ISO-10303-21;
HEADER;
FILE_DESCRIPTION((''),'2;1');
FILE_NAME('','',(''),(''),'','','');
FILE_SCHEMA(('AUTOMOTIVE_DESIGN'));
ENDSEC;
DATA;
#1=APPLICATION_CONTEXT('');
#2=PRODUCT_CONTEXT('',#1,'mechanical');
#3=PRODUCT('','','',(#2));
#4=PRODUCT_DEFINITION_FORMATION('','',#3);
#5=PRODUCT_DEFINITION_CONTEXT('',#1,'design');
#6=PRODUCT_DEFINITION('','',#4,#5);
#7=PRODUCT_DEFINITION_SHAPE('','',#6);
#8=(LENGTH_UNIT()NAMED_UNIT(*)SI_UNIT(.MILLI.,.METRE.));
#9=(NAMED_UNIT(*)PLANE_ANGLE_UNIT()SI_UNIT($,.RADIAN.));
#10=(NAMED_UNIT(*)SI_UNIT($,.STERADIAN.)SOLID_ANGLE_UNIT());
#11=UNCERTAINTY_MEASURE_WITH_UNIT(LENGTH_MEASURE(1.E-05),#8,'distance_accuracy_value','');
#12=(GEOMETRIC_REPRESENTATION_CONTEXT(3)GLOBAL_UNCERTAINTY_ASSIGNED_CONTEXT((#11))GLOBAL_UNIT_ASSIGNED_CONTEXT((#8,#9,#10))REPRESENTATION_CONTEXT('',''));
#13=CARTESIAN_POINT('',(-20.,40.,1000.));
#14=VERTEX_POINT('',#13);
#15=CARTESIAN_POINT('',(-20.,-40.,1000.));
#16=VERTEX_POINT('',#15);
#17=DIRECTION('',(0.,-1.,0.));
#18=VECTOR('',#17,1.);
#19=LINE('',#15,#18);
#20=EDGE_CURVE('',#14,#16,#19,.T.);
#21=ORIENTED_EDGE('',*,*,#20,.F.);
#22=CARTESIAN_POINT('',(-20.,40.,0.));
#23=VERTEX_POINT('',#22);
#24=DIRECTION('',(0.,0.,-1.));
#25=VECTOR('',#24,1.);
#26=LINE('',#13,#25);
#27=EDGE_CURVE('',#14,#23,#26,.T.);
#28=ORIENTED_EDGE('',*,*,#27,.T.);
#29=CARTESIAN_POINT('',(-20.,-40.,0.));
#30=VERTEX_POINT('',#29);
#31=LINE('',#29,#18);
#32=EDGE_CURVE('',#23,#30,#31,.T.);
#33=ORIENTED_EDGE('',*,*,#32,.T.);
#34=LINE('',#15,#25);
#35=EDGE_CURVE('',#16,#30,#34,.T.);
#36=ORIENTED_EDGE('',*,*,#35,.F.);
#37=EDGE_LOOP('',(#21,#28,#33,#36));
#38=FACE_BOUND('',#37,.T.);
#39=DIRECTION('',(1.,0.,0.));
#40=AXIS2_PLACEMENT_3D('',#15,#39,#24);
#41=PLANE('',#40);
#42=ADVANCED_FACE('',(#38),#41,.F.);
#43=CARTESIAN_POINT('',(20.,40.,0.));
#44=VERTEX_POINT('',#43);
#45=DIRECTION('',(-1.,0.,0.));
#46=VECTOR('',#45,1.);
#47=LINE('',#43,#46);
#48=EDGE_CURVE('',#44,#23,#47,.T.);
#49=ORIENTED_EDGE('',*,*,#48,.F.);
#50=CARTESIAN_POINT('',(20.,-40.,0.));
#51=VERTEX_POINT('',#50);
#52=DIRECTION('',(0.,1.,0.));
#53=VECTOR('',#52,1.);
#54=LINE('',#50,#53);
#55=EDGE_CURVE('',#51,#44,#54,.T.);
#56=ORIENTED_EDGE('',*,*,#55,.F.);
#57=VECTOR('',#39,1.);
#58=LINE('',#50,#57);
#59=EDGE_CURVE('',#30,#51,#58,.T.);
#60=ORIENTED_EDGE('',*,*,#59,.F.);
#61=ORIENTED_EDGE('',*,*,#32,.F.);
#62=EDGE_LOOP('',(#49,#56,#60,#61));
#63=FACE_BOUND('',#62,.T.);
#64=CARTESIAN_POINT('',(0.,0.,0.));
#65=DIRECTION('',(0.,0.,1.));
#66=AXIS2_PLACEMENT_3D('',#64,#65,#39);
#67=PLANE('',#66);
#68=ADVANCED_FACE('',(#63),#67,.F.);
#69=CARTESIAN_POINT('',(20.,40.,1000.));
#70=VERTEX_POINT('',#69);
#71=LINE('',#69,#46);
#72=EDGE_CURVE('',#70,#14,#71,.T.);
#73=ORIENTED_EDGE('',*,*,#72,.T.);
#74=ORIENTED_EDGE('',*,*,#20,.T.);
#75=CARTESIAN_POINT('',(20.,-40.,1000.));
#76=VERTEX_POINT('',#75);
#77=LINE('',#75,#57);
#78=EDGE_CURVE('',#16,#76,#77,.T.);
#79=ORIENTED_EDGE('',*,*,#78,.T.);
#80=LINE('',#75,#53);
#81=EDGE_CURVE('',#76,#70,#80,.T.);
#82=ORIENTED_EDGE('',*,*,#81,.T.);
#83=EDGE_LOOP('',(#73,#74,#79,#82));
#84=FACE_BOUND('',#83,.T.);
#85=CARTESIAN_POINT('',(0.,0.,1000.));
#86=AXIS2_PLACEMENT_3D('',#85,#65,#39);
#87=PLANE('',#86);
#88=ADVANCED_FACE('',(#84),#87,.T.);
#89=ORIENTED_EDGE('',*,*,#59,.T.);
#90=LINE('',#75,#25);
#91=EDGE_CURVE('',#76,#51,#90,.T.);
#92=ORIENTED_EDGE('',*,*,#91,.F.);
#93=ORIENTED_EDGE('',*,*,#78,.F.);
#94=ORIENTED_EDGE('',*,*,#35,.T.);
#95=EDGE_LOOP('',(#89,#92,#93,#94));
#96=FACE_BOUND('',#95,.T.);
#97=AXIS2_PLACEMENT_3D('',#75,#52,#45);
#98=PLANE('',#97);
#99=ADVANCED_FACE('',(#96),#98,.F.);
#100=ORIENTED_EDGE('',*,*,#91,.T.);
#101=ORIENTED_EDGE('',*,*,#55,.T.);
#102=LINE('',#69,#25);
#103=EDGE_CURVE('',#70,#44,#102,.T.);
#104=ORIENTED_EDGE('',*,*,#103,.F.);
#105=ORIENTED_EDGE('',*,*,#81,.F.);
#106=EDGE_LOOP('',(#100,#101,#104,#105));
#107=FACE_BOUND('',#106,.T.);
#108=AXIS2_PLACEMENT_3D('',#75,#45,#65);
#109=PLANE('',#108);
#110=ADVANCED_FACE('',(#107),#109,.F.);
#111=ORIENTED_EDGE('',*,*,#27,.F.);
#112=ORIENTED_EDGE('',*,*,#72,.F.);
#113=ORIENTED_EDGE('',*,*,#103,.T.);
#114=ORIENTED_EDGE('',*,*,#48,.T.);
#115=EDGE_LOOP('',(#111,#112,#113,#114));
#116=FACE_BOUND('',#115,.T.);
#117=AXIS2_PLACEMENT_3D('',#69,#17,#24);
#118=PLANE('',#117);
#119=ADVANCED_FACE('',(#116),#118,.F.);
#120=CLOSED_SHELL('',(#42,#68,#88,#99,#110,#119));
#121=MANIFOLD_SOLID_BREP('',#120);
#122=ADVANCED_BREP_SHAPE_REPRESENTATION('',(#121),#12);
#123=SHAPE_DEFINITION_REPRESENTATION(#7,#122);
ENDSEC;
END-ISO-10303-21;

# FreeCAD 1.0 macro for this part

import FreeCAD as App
import Part
import Sketcher


def add_polygon(sketch, points):
    """Adds a closed chain of lines whose ends are joined by coincident constraints."""
    first, n = sketch.GeometryCount, len(points)
    for a, b in zip(points, points[1:] + points[:1]):
        sketch.addGeometry(Part.LineSegment(App.Vector(*a, 0), App.Vector(*b, 0)), False)
    for i in range(n):
        sketch.addConstraint(Sketcher.Constraint("Coincident", first + i, 2, first + (i + 1) % n, 1))

doc = App.newDocument("Part")
body = doc.addObject("PartDesign::Body", "Body")

sketch1 = body.newObject("Sketcher::SketchObject", "Sketch")
sketch1.AttachmentSupport = (doc.getObject("XY_Plane"), [""])
sketch1.MapMode = "FlatFace"
add_polygon(sketch1, [(-20, 40), (-20, -40), (20, -40), (20, 40)])
sketch1.addConstraint([
    Sketcher.Constraint("Vertical", 0),
    Sketcher.Constraint("Horizontal", 1),
    Sketcher.Constraint("Vertical", 2),
    Sketcher.Constraint("Horizontal", 3),
    Sketcher.Constraint("Symmetric", 0, 2, 2, 2, -1, 1),
    Sketcher.Constraint("DistanceX", 1, 1, 1, 2, 40.0),
    Sketcher.Constraint("DistanceY", 0, 2, 0, 1, 80.0),
])
pad1 = body.newObject("PartDesign::Pad", "Pad")
pad1.Profile = sketch1
pad1.Length = 1000

doc.recompute()
